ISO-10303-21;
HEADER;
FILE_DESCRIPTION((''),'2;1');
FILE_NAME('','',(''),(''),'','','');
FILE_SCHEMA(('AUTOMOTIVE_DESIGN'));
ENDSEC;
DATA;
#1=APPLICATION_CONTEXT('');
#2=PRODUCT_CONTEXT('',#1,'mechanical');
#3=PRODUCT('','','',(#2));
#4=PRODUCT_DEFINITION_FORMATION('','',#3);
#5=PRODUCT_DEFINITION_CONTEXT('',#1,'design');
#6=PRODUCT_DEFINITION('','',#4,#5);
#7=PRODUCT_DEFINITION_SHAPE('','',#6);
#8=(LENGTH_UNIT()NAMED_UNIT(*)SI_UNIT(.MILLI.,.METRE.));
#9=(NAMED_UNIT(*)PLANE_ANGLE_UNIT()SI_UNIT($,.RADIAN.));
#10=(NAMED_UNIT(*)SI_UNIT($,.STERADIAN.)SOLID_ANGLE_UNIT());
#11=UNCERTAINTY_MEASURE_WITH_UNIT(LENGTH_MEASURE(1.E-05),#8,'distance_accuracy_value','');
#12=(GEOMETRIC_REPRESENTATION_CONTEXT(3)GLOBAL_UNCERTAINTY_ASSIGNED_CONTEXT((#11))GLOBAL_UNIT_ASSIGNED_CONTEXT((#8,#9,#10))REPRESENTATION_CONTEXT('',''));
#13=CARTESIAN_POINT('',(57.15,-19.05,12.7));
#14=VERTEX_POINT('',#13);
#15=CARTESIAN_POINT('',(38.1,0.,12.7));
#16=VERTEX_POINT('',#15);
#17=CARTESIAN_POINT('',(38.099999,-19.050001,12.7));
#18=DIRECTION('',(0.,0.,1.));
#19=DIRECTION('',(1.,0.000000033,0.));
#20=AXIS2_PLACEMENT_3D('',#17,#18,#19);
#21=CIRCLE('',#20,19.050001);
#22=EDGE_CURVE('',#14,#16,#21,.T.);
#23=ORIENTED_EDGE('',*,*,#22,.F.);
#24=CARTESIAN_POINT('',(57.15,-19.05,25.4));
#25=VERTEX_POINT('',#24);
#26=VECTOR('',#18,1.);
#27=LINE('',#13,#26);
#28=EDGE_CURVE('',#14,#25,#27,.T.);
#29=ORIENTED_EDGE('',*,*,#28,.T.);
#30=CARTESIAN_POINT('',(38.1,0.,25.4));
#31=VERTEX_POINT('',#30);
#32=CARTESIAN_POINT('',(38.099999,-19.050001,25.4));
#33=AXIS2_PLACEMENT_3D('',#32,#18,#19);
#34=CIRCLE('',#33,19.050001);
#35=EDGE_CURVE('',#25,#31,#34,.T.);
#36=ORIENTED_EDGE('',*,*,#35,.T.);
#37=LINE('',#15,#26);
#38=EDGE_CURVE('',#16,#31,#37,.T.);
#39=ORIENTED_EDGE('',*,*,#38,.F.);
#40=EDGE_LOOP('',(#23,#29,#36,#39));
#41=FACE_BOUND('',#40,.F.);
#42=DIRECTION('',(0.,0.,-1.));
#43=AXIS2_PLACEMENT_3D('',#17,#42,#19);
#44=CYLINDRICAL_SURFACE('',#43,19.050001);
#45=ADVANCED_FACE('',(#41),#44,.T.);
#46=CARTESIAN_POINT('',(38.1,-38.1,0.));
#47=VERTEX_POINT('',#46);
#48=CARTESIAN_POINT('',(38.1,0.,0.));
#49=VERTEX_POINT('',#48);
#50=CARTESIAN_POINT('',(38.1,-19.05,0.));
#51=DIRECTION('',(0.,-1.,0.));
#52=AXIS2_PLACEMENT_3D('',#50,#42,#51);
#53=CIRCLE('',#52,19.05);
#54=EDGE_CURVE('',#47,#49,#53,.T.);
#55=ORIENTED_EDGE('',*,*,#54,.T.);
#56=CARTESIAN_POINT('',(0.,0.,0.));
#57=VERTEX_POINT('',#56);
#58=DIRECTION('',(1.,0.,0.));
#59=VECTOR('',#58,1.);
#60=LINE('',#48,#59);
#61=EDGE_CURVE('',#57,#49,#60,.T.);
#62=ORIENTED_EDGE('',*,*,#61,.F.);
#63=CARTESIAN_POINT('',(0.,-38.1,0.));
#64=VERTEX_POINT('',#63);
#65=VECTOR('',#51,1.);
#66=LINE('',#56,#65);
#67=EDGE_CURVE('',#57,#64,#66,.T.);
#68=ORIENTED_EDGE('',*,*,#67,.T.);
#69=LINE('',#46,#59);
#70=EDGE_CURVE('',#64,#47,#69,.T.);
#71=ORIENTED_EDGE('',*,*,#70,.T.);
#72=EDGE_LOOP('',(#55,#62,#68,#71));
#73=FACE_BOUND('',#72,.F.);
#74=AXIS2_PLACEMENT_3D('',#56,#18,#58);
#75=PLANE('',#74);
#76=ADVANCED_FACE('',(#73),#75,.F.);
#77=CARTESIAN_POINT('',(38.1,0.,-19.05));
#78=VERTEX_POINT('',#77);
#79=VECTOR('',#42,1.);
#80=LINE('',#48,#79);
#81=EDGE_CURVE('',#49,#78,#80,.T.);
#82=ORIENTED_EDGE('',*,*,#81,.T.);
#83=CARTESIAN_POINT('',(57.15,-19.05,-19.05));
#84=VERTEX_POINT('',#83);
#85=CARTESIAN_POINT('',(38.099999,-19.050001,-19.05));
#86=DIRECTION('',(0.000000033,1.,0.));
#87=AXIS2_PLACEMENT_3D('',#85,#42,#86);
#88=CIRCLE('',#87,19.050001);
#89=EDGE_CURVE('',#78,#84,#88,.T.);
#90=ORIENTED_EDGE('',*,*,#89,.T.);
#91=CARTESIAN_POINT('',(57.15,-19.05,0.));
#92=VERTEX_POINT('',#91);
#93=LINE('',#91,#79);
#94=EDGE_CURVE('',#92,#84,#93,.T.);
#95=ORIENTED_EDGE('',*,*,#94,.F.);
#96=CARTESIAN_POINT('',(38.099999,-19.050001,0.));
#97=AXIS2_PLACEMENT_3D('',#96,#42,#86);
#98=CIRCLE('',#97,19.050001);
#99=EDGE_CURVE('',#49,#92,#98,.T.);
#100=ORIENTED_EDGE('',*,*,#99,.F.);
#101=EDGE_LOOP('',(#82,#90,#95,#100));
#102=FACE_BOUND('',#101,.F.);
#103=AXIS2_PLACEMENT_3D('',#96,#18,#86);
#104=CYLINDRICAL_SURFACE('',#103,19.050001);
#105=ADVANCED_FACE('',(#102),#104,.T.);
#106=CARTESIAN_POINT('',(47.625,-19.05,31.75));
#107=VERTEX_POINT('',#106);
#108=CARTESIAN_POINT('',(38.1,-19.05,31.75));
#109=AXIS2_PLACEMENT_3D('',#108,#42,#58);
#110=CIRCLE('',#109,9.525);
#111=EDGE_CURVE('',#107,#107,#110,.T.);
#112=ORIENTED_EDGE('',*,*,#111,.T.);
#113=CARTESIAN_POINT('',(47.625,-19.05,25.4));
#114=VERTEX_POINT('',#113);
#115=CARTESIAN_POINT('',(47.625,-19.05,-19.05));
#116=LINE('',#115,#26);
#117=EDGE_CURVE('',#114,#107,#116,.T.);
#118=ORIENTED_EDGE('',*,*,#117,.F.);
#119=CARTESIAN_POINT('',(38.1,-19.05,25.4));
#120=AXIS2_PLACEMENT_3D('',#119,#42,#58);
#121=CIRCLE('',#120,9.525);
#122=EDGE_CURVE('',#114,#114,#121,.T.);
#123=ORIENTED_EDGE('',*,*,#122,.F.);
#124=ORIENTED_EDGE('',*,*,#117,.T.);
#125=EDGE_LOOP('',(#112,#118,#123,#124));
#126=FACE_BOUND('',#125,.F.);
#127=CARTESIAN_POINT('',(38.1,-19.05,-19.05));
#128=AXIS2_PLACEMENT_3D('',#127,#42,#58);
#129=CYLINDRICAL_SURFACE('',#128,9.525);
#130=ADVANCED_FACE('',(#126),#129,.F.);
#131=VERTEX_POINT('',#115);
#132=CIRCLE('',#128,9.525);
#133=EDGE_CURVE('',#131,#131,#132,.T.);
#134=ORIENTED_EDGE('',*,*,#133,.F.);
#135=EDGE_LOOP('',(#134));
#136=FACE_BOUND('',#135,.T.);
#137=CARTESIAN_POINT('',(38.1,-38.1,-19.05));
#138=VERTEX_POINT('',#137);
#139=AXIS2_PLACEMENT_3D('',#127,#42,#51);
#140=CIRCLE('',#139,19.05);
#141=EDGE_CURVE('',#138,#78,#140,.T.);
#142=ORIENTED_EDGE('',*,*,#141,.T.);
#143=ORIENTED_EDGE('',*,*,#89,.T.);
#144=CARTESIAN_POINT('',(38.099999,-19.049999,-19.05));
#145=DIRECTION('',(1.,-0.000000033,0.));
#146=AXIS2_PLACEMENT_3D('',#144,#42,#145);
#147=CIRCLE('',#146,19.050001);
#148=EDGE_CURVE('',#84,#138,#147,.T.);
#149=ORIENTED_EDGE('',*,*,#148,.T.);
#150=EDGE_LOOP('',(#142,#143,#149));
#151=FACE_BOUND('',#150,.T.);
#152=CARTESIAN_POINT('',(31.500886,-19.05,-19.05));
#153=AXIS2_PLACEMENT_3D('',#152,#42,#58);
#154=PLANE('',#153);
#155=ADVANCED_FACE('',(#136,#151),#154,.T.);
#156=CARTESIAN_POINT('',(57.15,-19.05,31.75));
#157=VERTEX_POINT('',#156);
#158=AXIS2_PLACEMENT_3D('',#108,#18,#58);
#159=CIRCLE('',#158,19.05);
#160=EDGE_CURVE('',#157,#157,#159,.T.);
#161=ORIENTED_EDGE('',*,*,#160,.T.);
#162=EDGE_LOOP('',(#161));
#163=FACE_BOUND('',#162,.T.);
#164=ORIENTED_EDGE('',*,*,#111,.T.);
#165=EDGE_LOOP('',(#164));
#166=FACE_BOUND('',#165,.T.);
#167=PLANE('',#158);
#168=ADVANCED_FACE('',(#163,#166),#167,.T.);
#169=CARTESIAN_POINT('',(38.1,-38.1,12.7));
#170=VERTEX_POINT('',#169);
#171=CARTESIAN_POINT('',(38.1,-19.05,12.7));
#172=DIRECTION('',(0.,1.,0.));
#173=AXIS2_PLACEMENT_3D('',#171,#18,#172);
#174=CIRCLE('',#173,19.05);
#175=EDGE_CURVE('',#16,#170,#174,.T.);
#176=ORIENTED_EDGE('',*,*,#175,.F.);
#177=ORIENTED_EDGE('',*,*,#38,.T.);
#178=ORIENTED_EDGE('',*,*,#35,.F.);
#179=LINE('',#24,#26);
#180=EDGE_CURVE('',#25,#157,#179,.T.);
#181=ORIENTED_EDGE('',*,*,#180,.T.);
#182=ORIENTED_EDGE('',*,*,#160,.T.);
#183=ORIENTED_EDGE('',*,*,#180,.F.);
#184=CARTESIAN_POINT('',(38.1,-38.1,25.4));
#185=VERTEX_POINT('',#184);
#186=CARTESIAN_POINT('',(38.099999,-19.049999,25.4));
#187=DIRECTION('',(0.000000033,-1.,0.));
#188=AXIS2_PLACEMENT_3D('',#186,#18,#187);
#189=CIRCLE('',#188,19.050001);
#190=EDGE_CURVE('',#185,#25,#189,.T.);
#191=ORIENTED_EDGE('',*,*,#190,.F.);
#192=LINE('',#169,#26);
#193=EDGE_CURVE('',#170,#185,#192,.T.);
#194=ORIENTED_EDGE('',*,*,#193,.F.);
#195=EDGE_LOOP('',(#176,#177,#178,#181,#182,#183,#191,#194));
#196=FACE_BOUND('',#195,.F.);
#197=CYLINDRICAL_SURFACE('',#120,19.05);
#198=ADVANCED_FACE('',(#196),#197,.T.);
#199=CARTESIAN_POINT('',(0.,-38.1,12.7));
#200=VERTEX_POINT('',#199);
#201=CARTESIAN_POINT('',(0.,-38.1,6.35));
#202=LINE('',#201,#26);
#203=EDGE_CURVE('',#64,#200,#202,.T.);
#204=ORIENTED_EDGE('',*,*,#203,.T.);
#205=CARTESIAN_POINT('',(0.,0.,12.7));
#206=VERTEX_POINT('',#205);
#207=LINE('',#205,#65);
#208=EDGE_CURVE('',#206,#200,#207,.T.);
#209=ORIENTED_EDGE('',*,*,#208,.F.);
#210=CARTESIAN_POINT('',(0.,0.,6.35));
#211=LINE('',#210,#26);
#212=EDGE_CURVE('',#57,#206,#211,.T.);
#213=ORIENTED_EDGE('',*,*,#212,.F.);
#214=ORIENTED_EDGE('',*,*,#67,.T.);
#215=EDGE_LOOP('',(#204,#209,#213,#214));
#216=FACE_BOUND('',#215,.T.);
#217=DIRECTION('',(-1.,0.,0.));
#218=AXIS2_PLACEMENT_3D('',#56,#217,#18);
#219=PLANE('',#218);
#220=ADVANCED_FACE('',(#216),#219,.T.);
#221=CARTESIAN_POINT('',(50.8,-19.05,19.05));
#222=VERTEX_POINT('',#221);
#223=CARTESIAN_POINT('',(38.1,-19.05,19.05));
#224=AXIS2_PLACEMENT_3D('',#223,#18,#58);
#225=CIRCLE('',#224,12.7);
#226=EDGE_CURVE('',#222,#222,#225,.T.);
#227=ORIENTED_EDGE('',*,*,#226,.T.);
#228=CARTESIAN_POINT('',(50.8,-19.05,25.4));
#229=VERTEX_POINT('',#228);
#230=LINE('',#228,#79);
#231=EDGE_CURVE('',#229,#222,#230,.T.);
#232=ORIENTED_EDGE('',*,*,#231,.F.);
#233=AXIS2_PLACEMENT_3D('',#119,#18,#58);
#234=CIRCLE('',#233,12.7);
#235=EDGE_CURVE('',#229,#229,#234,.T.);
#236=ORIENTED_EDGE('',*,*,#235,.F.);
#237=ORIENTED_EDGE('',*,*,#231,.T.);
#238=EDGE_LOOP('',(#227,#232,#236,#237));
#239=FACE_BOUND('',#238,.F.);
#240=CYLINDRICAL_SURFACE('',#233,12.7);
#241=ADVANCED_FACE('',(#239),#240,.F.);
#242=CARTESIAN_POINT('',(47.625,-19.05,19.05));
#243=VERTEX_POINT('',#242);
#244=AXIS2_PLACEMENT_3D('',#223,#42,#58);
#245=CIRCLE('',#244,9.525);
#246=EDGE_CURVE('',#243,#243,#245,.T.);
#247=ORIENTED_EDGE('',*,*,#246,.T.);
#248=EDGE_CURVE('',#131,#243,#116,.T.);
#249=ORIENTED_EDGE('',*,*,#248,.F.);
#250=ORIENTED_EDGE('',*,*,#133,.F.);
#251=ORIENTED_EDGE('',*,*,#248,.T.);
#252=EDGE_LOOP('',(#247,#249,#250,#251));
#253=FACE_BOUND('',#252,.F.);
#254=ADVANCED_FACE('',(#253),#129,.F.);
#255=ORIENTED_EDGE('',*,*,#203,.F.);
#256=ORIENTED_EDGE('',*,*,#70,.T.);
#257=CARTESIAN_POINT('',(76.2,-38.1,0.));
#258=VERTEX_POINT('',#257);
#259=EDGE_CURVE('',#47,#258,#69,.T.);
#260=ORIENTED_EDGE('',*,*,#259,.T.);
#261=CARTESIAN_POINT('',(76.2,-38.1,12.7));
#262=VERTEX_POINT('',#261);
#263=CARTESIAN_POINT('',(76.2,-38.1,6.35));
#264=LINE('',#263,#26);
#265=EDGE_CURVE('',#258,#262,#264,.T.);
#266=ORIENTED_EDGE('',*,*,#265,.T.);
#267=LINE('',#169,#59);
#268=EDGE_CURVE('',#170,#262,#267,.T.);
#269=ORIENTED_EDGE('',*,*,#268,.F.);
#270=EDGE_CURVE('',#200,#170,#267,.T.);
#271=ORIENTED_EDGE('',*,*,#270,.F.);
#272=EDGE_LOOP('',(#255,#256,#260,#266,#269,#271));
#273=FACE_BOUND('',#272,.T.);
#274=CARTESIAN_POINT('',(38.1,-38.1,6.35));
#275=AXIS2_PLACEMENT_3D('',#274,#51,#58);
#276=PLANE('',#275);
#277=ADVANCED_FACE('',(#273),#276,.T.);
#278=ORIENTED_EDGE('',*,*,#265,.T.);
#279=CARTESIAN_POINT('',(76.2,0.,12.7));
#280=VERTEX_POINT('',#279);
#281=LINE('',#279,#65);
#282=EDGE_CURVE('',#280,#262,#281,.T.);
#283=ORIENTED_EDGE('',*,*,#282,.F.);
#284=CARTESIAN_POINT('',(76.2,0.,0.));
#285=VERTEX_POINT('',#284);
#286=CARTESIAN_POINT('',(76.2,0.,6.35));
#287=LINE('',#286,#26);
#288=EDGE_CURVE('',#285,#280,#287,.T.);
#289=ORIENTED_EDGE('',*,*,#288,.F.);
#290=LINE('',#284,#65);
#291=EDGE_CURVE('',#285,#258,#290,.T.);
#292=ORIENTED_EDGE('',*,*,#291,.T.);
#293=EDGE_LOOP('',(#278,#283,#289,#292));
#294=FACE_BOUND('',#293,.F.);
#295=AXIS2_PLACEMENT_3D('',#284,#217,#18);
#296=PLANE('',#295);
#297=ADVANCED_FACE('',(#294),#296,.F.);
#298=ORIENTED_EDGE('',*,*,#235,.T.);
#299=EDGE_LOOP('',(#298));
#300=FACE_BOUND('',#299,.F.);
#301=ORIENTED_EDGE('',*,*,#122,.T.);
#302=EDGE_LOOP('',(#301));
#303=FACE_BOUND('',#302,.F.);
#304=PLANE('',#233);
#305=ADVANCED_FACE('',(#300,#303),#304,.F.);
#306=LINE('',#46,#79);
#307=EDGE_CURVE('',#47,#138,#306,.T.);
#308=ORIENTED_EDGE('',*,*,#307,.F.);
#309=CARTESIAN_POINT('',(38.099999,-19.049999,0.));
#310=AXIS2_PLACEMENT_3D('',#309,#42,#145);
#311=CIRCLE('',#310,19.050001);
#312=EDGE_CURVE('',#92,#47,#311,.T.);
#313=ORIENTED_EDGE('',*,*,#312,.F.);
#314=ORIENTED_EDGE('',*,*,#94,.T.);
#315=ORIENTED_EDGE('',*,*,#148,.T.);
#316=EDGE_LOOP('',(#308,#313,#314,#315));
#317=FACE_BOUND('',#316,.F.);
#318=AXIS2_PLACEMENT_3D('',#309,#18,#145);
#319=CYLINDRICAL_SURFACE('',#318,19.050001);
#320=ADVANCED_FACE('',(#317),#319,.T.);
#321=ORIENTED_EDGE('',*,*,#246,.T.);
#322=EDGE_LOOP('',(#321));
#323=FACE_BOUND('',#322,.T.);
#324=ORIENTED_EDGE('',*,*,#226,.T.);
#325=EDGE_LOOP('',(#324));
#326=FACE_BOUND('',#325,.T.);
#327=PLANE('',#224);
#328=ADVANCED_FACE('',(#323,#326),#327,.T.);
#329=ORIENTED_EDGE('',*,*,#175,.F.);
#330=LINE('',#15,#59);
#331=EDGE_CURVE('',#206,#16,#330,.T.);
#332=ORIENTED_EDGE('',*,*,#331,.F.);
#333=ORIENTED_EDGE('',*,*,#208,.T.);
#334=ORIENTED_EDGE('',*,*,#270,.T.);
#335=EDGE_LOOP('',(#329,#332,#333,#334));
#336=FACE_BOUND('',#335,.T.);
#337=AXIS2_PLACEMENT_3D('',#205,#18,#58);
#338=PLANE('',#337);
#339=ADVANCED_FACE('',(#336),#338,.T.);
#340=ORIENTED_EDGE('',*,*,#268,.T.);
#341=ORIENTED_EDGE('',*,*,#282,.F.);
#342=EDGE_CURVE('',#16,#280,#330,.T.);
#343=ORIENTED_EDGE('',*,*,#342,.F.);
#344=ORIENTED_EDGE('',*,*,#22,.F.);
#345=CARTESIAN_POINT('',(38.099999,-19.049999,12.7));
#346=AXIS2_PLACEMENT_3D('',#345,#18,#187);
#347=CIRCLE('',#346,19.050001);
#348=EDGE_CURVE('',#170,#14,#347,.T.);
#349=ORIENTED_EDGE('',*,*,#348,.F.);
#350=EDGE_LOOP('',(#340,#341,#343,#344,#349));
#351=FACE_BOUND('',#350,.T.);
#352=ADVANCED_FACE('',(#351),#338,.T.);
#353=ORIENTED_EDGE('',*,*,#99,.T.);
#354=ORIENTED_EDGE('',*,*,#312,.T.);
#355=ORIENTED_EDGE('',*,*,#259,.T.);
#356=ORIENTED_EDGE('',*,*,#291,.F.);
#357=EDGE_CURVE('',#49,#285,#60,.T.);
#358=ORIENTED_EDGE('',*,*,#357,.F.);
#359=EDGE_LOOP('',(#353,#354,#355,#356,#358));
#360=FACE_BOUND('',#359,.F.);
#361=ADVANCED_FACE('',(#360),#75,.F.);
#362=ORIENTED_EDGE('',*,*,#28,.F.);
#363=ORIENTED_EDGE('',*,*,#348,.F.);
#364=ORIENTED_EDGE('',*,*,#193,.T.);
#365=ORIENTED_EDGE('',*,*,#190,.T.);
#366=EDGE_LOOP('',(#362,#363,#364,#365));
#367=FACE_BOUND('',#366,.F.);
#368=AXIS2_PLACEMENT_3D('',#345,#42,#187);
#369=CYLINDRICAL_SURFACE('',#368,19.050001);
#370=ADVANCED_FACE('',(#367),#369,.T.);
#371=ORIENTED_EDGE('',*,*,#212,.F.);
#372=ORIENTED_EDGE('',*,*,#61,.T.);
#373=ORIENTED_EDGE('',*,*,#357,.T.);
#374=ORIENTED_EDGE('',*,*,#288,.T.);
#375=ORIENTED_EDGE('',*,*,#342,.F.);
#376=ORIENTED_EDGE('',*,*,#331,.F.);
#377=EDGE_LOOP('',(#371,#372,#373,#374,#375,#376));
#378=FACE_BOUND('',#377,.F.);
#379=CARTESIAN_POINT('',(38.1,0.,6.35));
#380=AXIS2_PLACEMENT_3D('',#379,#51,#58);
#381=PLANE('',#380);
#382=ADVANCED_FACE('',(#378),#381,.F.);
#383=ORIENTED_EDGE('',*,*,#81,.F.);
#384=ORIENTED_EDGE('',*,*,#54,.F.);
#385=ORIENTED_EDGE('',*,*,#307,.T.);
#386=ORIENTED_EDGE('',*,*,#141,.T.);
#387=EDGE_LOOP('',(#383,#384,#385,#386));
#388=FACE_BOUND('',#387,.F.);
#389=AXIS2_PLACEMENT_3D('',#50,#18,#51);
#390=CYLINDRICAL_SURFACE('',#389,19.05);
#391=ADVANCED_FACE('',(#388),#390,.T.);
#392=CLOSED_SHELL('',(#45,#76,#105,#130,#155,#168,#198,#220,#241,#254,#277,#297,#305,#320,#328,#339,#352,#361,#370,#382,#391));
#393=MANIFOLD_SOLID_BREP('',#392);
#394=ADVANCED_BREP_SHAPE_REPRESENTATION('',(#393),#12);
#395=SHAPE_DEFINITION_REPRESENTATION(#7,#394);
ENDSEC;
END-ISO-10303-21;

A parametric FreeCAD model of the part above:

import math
import FreeCAD as App
import Part
import Sketcher
from FreeCAD import Vector
Q = App.Units.Quantity

doc = App.newDocument("Part")
params = doc.addObject("Spreadsheet::Sheet", "Params")
for row, (alias, value) in enumerate([
    ("sketch1_width", "3 in"),
    ("sketch1_height", "0.5 in"),
    ("pad1_length", "1.5 in"),
    ("sketch2_radius", "0.75 in"),
    ("pad2_length", "0.5 in"),
    ("sketch3_diameter", "1 in"),
    ("pocket1_length", "0.25 in"),
    ("sketch4_diameter", "1.5 in"),
    ("pad3_length", "0.25 in"),
    ("sketch5_radius", "0.75 in"),
    ("pad4_length", "0.75 in"),
    ("sketch6_diameter", "0.75 in"),
    ("pocket2_length", "6 in"),
], start=1):
    params.set(f"A{row}", alias)
    params.set(f"B{row}", "=" + value)
    params.setAlias(f"B{row}", alias)

body = doc.addObject("PartDesign::Body", "Body")

# Sketch on XZ plane
sketch1 = body.newObject("Sketcher::SketchObject", "Sketch")
sketch1.AttachmentSupport = (doc.getObject("XZ_Plane"), [""])
sketch1.MapMode = "FlatFace"
sketch1.addGeometry([
    Part.LineSegment(Vector(0, 13, 0), Vector(0, 0, 0)),
    Part.LineSegment(Vector(0, 0, 0), Vector(76, 0, 0)),
    Part.LineSegment(Vector(76, 0, 0), Vector(76, 13, 0)),
    Part.LineSegment(Vector(76, 13, 0), Vector(0, 13, 0)),
], False)
sketch1.addConstraint([
    Sketcher.Constraint("Coincident", 0, 2, 1, 1),
    Sketcher.Constraint("Coincident", 1, 2, 2, 1),
    Sketcher.Constraint("Coincident", 2, 2, 3, 1),
    Sketcher.Constraint("Coincident", 3, 2, 0, 1),
    Sketcher.Constraint("Vertical", 0),
    Sketcher.Constraint("Horizontal", 1),
    Sketcher.Constraint("Vertical", 2),
    Sketcher.Constraint("Horizontal", 3),
    Sketcher.Constraint("Coincident", 0, 2, -1, 1),
    Sketcher.Constraint("DistanceX", 1, 1, 1, 2, Q("3 in")),
    Sketcher.Constraint("DistanceY", 0, 2, 0, 1, Q("0.5 in")),
])
sketch1.setExpression("Constraints[9]", "Params.sketch1_width")
sketch1.setExpression("Constraints[10]", "Params.sketch1_height")
pad1 = body.newObject("PartDesign::Pad", "Pad")
pad1.Profile = sketch1
pad1.setExpression("Length", "Params.pad1_length")

# Sketch on XY plane
sketch2 = body.newObject("Sketcher::SketchObject", "Sketch001")
sketch2.AttachmentSupport = (doc.getObject("XY_Plane"), [""])
sketch2.MapMode = "FlatFace"
sketch2.AttachmentOffset = App.Placement(Vector(0, 0, 0.5 * 25.4), App.Rotation())
sketch2.addGeometry([
    Part.ArcOfCircle(Part.Circle(Vector(38, -19, 0), Vector(0, 0, 1), 19), math.radians(0), math.radians(90)),
    Part.ArcOfCircle(Part.Circle(Vector(38, -19, 0), Vector(0, 0, 1), 19), math.radians(90), math.radians(270)),
    Part.ArcOfCircle(Part.Circle(Vector(38, -19, 0), Vector(0, 0, 1), 19), math.radians(-90), math.radians(0)),
], False)
sketch2.addConstraint([
    Sketcher.Constraint("Tangent", 0, 2, 1, 1),
    Sketcher.Constraint("Tangent", 1, 2, 2, 1),
    Sketcher.Constraint("Tangent", 2, 2, 0, 1),
    Sketcher.Constraint("PointOnObject", 0, 2, -1),
    Sketcher.Constraint("Horizontal", 1, 3, 2, 2),
    Sketcher.Constraint("Vertical", 2, 3, 0, 2),
    Sketcher.Constraint("Vertical", 0, 2, 1, 2),
    Sketcher.Constraint("Radius", 0, Q("0.75 in")),
    Sketcher.Constraint("DistanceX", -1, 1, 0, 3, Q("1.5 in")),
])
sketch2.setExpression("Constraints[7]", "Params.sketch2_radius")
pad2 = body.newObject("PartDesign::Pad", "Pad001")
pad2.Profile = sketch2
pad2.setExpression("Length", "Params.pad2_length")

# Sketch on XY plane
sketch3 = body.newObject("Sketcher::SketchObject", "Sketch002")
sketch3.AttachmentSupport = (doc.getObject("XY_Plane"), [""])
sketch3.MapMode = "FlatFace"
sketch3.AttachmentOffset = App.Placement(Vector(0, 0, 1 * 25.4), App.Rotation())
sketch3.addGeometry(Part.Circle(Vector(38, -19, 0), Vector(0, 0, 1), 13), False)
sketch3.addConstraint([
    Sketcher.Constraint("Diameter", 0, Q("1 in")),
    Sketcher.Constraint("DistanceX", -1, 1, 0, 3, Q("1.5 in")),
    Sketcher.Constraint("DistanceY", 0, 3, -1, 1, Q("0.75 in")),
])
sketch3.setExpression("Constraints[0]", "Params.sketch3_diameter")
pocket1 = body.newObject("PartDesign::Pocket", "Pocket")
pocket1.Profile = sketch3
pocket1.setExpression("Length", "Params.pocket1_length")

# Sketch on XY plane
sketch4 = body.newObject("Sketcher::SketchObject", "Sketch003")
sketch4.AttachmentSupport = (doc.getObject("XY_Plane"), [""])
sketch4.MapMode = "FlatFace"
sketch4.AttachmentOffset = App.Placement(Vector(0, 0, 1 * 25.4), App.Rotation())
sketch4.addGeometry(Part.Circle(Vector(38, -19, 0), Vector(0, 0, 1), 19), False)
sketch4.addConstraint([
    Sketcher.Constraint("Diameter", 0, Q("1.5 in")),
    Sketcher.Constraint("DistanceX", -1, 1, 0, 3, Q("1.5 in")),
    Sketcher.Constraint("DistanceY", 0, 3, -1, 1, Q("0.75 in")),
])
sketch4.setExpression("Constraints[0]", "Params.sketch4_diameter")
pad3 = body.newObject("PartDesign::Pad", "Pad002")
pad3.Profile = sketch4
pad3.setExpression("Length", "Params.pad3_length")

# Sketch on XY plane
sketch5 = body.newObject("Sketcher::SketchObject", "Sketch004")
sketch5.AttachmentSupport = (doc.getObject("XY_Plane"), [""])
sketch5.MapMode = "FlatFace"
sketch5.addGeometry([
    Part.ArcOfCircle(Part.Circle(Vector(38, -19, 0), Vector(0, 0, 1), 19), math.radians(90), math.radians(270)),
    Part.ArcOfCircle(Part.Circle(Vector(38, -19, 0), Vector(0, 0, 1), 19), math.radians(0), math.radians(90)),
    Part.ArcOfCircle(Part.Circle(Vector(38, -19, 0), Vector(0, 0, 1), 19), math.radians(-90), math.radians(0)),
], False)
sketch5.addConstraint([
    Sketcher.Constraint("Tangent", 0, 1, 1, 2),
    Sketcher.Constraint("Tangent", 1, 1, 2, 2),
    Sketcher.Constraint("Tangent", 2, 1, 0, 2),
    Sketcher.Constraint("PointOnObject", 0, 1, -1),
    Sketcher.Constraint("Horizontal", 2, 3, 1, 1),
    Sketcher.Constraint("Vertical", 2, 3, 0, 1),
    Sketcher.Constraint("Vertical", 0, 1, 2, 1),
    Sketcher.Constraint("Radius", 0, Q("0.75 in")),
    Sketcher.Constraint("DistanceX", -1, 1, 0, 3, Q("1.5 in")),
])
sketch5.setExpression("Constraints[7]", "Params.sketch5_radius")
pad4 = body.newObject("PartDesign::Pad", "Pad003")
pad4.Profile = sketch5
pad4.setExpression("Length", "Params.pad4_length")
pad4.Reversed = True

# Sketch on XY plane
sketch6 = body.newObject("Sketcher::SketchObject", "Sketch005")
sketch6.AttachmentSupport = (doc.getObject("XY_Plane"), [""])
sketch6.MapMode = "FlatFace"
sketch6.AttachmentOffset = App.Placement(Vector(0, 0, -0.75 * 25.4), App.Rotation())
sketch6.addGeometry(Part.Circle(Vector(38, -19, 0), Vector(0, 0, 1), 10), False)
sketch6.addConstraint([
    Sketcher.Constraint("Diameter", 0, Q("0.75 in")),
    Sketcher.Constraint("DistanceX", -1, 1, 0, 3, Q("1.5 in")),
    Sketcher.Constraint("DistanceY", 0, 3, -1, 1, Q("0.75 in")),
])
sketch6.setExpression("Constraints[0]", "Params.sketch6_diameter")
pocket2 = body.newObject("PartDesign::Pocket", "Pocket001")
pocket2.Profile = sketch6
pocket2.setExpression("Length", "Params.pocket2_length")
pocket2.Reversed = True

doc.recompute()
